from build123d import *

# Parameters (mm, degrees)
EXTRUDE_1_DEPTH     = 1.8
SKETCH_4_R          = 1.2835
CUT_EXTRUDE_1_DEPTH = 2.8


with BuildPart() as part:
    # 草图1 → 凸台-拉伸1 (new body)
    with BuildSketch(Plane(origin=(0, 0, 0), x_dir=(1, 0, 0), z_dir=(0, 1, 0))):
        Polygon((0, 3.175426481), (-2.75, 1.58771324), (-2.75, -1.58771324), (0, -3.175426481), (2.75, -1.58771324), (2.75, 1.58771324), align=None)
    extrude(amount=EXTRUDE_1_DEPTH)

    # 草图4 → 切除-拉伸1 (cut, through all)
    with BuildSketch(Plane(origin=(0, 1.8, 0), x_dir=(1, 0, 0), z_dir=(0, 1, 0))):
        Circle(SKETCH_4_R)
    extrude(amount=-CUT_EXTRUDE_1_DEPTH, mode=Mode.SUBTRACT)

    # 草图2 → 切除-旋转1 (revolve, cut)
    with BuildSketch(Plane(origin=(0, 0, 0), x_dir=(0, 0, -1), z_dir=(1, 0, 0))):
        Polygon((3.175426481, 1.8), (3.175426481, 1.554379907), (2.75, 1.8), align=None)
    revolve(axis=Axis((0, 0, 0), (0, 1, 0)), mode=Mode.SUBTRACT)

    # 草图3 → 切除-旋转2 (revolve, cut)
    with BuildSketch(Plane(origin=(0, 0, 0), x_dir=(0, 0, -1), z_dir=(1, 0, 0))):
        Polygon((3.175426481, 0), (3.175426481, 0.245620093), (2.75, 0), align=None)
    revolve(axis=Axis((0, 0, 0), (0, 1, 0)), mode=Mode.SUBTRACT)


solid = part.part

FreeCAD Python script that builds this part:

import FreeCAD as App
import Part
import Sketcher
Q = App.Units.Quantity


def add_polygon(sketch, points):
    """Adds a closed chain of lines whose ends are joined by coincident constraints."""
    first, n = sketch.GeometryCount, len(points)
    for a, b in zip(points, points[1:] + points[:1]):
        sketch.addGeometry(Part.LineSegment(App.Vector(*a, 0), App.Vector(*b, 0)), False)
    for i in range(n):
        sketch.addConstraint(Sketcher.Constraint("Coincident", first + i, 2, first + (i + 1) % n, 1))

doc = App.newDocument("Part")
body = doc.addObject("PartDesign::Body", "Body")

# Sketch on XZ plane
sketch1 = doc.addObject("Sketcher::SketchObject", "Sketch")
body.addObject(sketch1)
sketch1.AttachmentSupport = (doc.XZ_Plane, [""])
sketch1.MapMode = "FlatFace"
add_polygon(sketch1, [(0, -3.2), (-2.8, -1.6), (-2.8, 1.6), (0, 3.2), (2.8, 1.6), (2.8, -1.6)])  # lines 0-5
sketch1.addConstraint(Sketcher.Constraint("Vertical", 1))
sketch1.addConstraint(Sketcher.Constraint("Vertical", 4))
sketch1.addConstraint(Sketcher.Constraint("Symmetric", 0, 2, 3, 2, -1, 1))
sketch1.addConstraint(Sketcher.Constraint("Symmetric", 2, 2, 5, 2, -1, 1))
sketch1.addConstraint(Sketcher.Constraint("PointOnObject", 2, 2, -2))
sketch1.addConstraint(Sketcher.Constraint("Parallel", 2, 5))
sketch1.addConstraint(Sketcher.Constraint("Horizontal", 1, 2, 3, 2))
sketch1.addConstraint(Sketcher.Constraint("Angle", 0, Q("150 deg")))
sketch1.addConstraint(Sketcher.Constraint("DistanceX", 1, 2, 3, 2, 5.5))
sketch1.addConstraint(Sketcher.Constraint("DistanceY", 1, 1, 1, 2, 3.175426))
pad1 = doc.addObject("PartDesign::Pad", "Pad")
body.addObject(pad1)
pad1.Profile = sketch1
pad1.Length = 1.8
pad1.Reversed = True

# Sketch on XZ plane
sketch2 = doc.addObject("Sketcher::SketchObject", "Sketch001")
body.addObject(sketch2)
sketch2.AttachmentSupport = (doc.XZ_Plane, [""])
sketch2.MapMode = "FlatFace"
sketch2.AttachmentOffset = App.Placement(App.Vector(0, 0, -1.8), App.Rotation())
sketch2.addGeometry(Part.Circle(App.Vector(0, 0, 0), App.Vector(0, 0, 1), 1.3), False)
sketch2.addConstraint(Sketcher.Constraint("Coincident", 0, 3, -1, 1))
sketch2.addConstraint(Sketcher.Constraint("Diameter", 0, 2.567))
pocket1 = doc.addObject("PartDesign::Pocket", "Pocket")
body.addObject(pocket1)
pocket1.Profile = sketch2
pocket1.Type = "ThroughAll"
pocket1.Reversed = True

# Sketch on YZ plane
sketch3 = doc.addObject("Sketcher::SketchObject", "Sketch002")
body.addObject(sketch3)
sketch3.AttachmentSupport = (doc.YZ_Plane, [""])
sketch3.MapMode = "FlatFace"
add_polygon(sketch3, [(1.55, -3.18), (1.8, -3.18), (1.8, -2.75)])  # lines 0-2
sketch3.addConstraint(Sketcher.Constraint("Horizontal", 0))
sketch3.addConstraint(Sketcher.Constraint("Vertical", 1))
sketch3.addConstraint(Sketcher.Constraint("Angle", 2, Q("-120 deg")))
sketch3.addConstraint(Sketcher.Constraint("DistanceX", -1, 1, 0, 2, 1.8))
sketch3.addConstraint(Sketcher.Constraint("DistanceY", 1, 2, -1, 1, 2.75))
sketch3.addConstraint(Sketcher.Constraint("DistanceX", 0, 1, 0, 2, 0.24562))
groove = doc.addObject("PartDesign::Groove", "Groove")
body.addObject(groove)
groove.Profile = sketch3
groove.ReferenceAxis = (sketch3, ["H_Axis"])
groove.Angle = 360

# Sketch on YZ plane
sketch4 = doc.addObject("Sketcher::SketchObject", "Sketch003")
body.addObject(sketch4)
sketch4.AttachmentSupport = (doc.YZ_Plane, [""])
sketch4.MapMode = "FlatFace"
add_polygon(sketch4, [(0, -3.18), (0.25, -3.18), (0, -2.75)])  # lines 0-2
sketch4.addConstraint(Sketcher.Constraint("Horizontal", 0))
sketch4.addConstraint(Sketcher.Constraint("Vertical", 2))
sketch4.addConstraint(Sketcher.Constraint("PointOnObject", 1, 2, -2))
sketch4.addConstraint(Sketcher.Constraint("Angle", 1, Q("120 deg")))
sketch4.addConstraint(Sketcher.Constraint("DistanceY", 1, 2, -1, 1, 2.75))
sketch4.addConstraint(Sketcher.Constraint("DistanceX", 0, 1, 0, 2, 0.24562))
groove2 = doc.addObject("PartDesign::Groove", "Groove001")
body.addObject(groove2)
groove2.Profile = sketch4
groove2.ReferenceAxis = (sketch4, ["H_Axis"])
groove2.Angle = 360

doc.recompute()
